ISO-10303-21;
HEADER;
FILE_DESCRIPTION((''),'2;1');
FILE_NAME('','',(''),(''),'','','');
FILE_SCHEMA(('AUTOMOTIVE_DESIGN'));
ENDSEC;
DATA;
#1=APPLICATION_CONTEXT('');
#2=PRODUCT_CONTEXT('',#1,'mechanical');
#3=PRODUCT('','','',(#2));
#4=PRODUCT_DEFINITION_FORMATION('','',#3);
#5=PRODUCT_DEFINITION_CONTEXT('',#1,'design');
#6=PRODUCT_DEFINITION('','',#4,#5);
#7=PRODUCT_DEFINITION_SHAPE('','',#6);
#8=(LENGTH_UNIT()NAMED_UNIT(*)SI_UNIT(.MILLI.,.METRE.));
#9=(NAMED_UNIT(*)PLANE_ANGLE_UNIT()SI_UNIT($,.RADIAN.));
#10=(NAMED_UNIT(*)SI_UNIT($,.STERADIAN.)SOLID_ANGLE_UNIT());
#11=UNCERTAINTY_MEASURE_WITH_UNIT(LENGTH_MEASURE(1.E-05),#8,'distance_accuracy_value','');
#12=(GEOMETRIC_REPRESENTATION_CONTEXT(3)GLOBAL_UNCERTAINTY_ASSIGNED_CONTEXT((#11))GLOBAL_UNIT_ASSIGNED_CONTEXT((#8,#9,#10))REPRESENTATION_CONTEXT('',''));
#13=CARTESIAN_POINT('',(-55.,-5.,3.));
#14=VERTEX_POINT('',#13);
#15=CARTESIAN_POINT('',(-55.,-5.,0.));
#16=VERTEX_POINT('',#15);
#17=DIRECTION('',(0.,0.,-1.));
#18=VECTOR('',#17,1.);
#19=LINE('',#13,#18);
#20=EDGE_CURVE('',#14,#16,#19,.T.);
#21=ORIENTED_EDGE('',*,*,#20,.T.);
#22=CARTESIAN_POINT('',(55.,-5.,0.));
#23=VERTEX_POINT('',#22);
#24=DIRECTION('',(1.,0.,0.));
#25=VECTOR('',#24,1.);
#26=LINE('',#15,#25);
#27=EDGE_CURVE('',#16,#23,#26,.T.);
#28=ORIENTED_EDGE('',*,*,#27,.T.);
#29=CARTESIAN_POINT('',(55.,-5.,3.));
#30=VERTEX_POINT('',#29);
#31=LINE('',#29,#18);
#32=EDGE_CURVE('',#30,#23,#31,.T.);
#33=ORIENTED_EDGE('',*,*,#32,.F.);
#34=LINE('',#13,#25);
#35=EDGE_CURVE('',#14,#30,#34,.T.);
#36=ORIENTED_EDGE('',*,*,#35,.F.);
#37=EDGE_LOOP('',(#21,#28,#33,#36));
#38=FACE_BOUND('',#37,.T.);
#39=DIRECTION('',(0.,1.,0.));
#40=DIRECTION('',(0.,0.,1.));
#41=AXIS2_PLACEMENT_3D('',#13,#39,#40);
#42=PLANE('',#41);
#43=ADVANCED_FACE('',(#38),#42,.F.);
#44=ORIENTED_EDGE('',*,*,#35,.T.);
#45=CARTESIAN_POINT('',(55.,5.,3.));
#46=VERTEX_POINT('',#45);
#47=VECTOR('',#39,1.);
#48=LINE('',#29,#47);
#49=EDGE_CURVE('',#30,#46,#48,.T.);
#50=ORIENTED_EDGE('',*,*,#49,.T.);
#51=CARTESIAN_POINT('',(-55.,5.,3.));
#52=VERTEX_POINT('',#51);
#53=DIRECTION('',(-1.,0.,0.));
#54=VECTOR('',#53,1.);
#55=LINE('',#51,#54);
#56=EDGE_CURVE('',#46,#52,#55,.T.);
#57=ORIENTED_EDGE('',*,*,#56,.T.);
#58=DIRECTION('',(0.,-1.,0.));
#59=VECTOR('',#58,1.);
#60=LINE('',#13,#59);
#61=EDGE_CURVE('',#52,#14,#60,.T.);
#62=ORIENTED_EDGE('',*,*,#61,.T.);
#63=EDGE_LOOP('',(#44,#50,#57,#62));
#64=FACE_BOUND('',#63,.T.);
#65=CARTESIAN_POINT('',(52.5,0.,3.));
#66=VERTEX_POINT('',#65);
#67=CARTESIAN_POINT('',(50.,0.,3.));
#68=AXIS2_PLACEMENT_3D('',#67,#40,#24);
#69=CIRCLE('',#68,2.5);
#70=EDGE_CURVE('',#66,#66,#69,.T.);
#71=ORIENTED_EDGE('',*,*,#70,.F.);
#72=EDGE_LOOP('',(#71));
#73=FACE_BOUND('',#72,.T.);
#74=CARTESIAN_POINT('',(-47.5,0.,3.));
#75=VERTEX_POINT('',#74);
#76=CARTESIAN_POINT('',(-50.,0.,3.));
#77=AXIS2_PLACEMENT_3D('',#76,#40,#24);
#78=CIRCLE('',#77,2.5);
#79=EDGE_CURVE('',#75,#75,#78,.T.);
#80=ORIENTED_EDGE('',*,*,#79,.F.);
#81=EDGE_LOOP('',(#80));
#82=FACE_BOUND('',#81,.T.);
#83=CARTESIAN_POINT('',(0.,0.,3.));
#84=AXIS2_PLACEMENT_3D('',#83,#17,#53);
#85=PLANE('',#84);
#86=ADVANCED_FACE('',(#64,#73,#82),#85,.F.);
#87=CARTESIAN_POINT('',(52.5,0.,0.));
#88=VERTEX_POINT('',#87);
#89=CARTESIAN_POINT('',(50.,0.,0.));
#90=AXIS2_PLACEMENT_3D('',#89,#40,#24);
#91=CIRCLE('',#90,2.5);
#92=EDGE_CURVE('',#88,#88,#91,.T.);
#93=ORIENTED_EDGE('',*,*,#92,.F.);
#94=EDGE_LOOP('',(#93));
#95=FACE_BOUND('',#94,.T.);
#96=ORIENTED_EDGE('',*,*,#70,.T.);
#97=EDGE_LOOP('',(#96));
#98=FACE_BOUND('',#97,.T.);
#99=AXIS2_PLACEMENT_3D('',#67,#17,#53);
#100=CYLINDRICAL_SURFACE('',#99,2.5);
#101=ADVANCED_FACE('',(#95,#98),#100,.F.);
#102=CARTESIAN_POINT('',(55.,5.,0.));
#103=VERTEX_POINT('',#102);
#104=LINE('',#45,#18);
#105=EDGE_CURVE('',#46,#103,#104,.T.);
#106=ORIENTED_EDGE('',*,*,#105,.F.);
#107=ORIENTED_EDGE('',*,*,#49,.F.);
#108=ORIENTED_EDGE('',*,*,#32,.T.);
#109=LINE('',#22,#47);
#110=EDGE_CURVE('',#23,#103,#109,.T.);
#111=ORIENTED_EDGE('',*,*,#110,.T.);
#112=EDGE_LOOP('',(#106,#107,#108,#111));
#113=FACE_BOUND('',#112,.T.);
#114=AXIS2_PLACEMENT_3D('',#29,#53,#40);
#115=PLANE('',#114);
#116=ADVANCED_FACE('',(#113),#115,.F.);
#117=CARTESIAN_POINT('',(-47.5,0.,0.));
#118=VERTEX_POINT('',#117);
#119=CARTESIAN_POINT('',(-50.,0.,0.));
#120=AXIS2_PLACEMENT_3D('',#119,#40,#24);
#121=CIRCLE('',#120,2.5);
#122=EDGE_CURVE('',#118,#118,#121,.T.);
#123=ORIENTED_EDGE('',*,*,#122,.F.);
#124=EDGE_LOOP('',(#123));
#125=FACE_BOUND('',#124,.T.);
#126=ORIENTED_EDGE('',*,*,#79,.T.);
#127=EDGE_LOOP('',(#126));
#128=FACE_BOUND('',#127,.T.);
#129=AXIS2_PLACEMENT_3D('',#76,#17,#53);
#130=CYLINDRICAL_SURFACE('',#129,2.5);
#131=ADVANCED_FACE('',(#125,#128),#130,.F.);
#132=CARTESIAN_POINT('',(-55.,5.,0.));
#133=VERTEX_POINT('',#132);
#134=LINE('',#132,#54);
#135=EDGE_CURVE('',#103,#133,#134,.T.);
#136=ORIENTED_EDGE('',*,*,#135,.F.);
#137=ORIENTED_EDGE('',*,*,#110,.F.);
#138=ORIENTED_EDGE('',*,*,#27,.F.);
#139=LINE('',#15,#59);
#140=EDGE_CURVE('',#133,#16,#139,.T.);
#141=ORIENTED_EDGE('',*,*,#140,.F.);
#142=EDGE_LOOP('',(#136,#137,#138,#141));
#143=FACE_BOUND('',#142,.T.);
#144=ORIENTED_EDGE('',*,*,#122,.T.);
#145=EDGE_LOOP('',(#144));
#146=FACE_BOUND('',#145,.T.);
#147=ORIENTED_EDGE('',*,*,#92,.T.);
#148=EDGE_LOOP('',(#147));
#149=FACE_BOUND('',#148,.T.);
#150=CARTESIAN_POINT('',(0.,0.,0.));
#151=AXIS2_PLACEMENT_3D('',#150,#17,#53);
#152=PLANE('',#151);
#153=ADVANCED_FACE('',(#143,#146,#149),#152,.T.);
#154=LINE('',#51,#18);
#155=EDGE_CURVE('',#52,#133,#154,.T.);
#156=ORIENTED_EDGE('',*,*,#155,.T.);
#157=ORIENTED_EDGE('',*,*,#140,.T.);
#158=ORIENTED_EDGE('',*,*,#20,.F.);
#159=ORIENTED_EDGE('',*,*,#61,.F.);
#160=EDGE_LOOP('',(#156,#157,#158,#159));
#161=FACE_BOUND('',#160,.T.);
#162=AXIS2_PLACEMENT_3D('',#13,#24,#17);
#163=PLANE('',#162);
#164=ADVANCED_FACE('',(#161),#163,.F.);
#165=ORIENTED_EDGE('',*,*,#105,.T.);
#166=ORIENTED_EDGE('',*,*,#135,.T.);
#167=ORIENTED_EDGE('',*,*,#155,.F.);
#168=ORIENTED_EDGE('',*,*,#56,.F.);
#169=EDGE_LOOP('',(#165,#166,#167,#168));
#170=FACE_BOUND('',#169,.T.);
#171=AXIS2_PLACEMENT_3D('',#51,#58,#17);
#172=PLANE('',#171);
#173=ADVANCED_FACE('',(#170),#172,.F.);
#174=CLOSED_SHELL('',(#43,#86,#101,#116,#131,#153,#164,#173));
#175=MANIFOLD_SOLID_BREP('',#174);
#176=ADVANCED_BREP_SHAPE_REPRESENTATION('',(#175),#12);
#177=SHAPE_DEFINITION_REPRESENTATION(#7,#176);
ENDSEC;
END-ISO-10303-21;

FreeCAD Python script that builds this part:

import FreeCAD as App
import Part
import Sketcher
from FreeCAD import Vector

doc = App.newDocument("Part")
body = doc.addObject("PartDesign::Body", "Body")

sketch1 = doc.addObject("Sketcher::SketchObject", "Sketch")
body.addObject(sketch1)
sketch1.AttachmentSupport = (doc.XY_Plane, [""])
sketch1.MapMode = "FlatFace"
sketch1.addGeometry(Part.LineSegment(Vector(-55, 5, 0), Vector(-55, -5, 0)), False)
sketch1.addGeometry(Part.LineSegment(Vector(-55, -5, 0), Vector(55, -5, 0)), False)
sketch1.addGeometry(Part.LineSegment(Vector(55, -5, 0), Vector(55, 5, 0)), False)
sketch1.addGeometry(Part.LineSegment(Vector(55, 5, 0), Vector(-55, 5, 0)), False)
sketch1.addGeometry(Part.Circle(Vector(-50, 0, 0), Vector(0, 0, 1), 2.5), False)
sketch1.addGeometry(Part.Circle(Vector(50, 0, 0), Vector(0, 0, 1), 2.5), False)
sketch1.addConstraint(Sketcher.Constraint("Coincident", 0, 2, 1, 1))
sketch1.addConstraint(Sketcher.Constraint("Coincident", 1, 2, 2, 1))
sketch1.addConstraint(Sketcher.Constraint("Coincident", 2, 2, 3, 1))
sketch1.addConstraint(Sketcher.Constraint("Coincident", 3, 2, 0, 1))
sketch1.addConstraint(Sketcher.Constraint("Vertical", 0))
sketch1.addConstraint(Sketcher.Constraint("Horizontal", 1))
sketch1.addConstraint(Sketcher.Constraint("Vertical", 2))
sketch1.addConstraint(Sketcher.Constraint("Horizontal", 3))
sketch1.addConstraint(Sketcher.Constraint("Equal", 4, 5))
sketch1.addConstraint(Sketcher.Constraint("Symmetric", 4, 3, 5, 3, -1, 1))
sketch1.addConstraint(Sketcher.Constraint("Symmetric", 0, 2, 2, 2, -1, 1))
sketch1.addConstraint(Sketcher.Constraint("PointOnObject", 4, 3, -1))
sketch1.addConstraint(Sketcher.Constraint("Diameter", 4, 5.0))
sketch1.addConstraint(Sketcher.Constraint("DistanceX", 1, 1, 1, 2, 110.0))
sketch1.addConstraint(Sketcher.Constraint("DistanceY", 0, 2, 0, 1, 10.0))
sketch1.addConstraint(Sketcher.Constraint("DistanceX", 4, 3, -1, 1, 50.0))
pad1 = doc.addObject("PartDesign::Pad", "Pad")
body.addObject(pad1)
pad1.Profile = sketch1
pad1.Length = 3

doc.recompute()
